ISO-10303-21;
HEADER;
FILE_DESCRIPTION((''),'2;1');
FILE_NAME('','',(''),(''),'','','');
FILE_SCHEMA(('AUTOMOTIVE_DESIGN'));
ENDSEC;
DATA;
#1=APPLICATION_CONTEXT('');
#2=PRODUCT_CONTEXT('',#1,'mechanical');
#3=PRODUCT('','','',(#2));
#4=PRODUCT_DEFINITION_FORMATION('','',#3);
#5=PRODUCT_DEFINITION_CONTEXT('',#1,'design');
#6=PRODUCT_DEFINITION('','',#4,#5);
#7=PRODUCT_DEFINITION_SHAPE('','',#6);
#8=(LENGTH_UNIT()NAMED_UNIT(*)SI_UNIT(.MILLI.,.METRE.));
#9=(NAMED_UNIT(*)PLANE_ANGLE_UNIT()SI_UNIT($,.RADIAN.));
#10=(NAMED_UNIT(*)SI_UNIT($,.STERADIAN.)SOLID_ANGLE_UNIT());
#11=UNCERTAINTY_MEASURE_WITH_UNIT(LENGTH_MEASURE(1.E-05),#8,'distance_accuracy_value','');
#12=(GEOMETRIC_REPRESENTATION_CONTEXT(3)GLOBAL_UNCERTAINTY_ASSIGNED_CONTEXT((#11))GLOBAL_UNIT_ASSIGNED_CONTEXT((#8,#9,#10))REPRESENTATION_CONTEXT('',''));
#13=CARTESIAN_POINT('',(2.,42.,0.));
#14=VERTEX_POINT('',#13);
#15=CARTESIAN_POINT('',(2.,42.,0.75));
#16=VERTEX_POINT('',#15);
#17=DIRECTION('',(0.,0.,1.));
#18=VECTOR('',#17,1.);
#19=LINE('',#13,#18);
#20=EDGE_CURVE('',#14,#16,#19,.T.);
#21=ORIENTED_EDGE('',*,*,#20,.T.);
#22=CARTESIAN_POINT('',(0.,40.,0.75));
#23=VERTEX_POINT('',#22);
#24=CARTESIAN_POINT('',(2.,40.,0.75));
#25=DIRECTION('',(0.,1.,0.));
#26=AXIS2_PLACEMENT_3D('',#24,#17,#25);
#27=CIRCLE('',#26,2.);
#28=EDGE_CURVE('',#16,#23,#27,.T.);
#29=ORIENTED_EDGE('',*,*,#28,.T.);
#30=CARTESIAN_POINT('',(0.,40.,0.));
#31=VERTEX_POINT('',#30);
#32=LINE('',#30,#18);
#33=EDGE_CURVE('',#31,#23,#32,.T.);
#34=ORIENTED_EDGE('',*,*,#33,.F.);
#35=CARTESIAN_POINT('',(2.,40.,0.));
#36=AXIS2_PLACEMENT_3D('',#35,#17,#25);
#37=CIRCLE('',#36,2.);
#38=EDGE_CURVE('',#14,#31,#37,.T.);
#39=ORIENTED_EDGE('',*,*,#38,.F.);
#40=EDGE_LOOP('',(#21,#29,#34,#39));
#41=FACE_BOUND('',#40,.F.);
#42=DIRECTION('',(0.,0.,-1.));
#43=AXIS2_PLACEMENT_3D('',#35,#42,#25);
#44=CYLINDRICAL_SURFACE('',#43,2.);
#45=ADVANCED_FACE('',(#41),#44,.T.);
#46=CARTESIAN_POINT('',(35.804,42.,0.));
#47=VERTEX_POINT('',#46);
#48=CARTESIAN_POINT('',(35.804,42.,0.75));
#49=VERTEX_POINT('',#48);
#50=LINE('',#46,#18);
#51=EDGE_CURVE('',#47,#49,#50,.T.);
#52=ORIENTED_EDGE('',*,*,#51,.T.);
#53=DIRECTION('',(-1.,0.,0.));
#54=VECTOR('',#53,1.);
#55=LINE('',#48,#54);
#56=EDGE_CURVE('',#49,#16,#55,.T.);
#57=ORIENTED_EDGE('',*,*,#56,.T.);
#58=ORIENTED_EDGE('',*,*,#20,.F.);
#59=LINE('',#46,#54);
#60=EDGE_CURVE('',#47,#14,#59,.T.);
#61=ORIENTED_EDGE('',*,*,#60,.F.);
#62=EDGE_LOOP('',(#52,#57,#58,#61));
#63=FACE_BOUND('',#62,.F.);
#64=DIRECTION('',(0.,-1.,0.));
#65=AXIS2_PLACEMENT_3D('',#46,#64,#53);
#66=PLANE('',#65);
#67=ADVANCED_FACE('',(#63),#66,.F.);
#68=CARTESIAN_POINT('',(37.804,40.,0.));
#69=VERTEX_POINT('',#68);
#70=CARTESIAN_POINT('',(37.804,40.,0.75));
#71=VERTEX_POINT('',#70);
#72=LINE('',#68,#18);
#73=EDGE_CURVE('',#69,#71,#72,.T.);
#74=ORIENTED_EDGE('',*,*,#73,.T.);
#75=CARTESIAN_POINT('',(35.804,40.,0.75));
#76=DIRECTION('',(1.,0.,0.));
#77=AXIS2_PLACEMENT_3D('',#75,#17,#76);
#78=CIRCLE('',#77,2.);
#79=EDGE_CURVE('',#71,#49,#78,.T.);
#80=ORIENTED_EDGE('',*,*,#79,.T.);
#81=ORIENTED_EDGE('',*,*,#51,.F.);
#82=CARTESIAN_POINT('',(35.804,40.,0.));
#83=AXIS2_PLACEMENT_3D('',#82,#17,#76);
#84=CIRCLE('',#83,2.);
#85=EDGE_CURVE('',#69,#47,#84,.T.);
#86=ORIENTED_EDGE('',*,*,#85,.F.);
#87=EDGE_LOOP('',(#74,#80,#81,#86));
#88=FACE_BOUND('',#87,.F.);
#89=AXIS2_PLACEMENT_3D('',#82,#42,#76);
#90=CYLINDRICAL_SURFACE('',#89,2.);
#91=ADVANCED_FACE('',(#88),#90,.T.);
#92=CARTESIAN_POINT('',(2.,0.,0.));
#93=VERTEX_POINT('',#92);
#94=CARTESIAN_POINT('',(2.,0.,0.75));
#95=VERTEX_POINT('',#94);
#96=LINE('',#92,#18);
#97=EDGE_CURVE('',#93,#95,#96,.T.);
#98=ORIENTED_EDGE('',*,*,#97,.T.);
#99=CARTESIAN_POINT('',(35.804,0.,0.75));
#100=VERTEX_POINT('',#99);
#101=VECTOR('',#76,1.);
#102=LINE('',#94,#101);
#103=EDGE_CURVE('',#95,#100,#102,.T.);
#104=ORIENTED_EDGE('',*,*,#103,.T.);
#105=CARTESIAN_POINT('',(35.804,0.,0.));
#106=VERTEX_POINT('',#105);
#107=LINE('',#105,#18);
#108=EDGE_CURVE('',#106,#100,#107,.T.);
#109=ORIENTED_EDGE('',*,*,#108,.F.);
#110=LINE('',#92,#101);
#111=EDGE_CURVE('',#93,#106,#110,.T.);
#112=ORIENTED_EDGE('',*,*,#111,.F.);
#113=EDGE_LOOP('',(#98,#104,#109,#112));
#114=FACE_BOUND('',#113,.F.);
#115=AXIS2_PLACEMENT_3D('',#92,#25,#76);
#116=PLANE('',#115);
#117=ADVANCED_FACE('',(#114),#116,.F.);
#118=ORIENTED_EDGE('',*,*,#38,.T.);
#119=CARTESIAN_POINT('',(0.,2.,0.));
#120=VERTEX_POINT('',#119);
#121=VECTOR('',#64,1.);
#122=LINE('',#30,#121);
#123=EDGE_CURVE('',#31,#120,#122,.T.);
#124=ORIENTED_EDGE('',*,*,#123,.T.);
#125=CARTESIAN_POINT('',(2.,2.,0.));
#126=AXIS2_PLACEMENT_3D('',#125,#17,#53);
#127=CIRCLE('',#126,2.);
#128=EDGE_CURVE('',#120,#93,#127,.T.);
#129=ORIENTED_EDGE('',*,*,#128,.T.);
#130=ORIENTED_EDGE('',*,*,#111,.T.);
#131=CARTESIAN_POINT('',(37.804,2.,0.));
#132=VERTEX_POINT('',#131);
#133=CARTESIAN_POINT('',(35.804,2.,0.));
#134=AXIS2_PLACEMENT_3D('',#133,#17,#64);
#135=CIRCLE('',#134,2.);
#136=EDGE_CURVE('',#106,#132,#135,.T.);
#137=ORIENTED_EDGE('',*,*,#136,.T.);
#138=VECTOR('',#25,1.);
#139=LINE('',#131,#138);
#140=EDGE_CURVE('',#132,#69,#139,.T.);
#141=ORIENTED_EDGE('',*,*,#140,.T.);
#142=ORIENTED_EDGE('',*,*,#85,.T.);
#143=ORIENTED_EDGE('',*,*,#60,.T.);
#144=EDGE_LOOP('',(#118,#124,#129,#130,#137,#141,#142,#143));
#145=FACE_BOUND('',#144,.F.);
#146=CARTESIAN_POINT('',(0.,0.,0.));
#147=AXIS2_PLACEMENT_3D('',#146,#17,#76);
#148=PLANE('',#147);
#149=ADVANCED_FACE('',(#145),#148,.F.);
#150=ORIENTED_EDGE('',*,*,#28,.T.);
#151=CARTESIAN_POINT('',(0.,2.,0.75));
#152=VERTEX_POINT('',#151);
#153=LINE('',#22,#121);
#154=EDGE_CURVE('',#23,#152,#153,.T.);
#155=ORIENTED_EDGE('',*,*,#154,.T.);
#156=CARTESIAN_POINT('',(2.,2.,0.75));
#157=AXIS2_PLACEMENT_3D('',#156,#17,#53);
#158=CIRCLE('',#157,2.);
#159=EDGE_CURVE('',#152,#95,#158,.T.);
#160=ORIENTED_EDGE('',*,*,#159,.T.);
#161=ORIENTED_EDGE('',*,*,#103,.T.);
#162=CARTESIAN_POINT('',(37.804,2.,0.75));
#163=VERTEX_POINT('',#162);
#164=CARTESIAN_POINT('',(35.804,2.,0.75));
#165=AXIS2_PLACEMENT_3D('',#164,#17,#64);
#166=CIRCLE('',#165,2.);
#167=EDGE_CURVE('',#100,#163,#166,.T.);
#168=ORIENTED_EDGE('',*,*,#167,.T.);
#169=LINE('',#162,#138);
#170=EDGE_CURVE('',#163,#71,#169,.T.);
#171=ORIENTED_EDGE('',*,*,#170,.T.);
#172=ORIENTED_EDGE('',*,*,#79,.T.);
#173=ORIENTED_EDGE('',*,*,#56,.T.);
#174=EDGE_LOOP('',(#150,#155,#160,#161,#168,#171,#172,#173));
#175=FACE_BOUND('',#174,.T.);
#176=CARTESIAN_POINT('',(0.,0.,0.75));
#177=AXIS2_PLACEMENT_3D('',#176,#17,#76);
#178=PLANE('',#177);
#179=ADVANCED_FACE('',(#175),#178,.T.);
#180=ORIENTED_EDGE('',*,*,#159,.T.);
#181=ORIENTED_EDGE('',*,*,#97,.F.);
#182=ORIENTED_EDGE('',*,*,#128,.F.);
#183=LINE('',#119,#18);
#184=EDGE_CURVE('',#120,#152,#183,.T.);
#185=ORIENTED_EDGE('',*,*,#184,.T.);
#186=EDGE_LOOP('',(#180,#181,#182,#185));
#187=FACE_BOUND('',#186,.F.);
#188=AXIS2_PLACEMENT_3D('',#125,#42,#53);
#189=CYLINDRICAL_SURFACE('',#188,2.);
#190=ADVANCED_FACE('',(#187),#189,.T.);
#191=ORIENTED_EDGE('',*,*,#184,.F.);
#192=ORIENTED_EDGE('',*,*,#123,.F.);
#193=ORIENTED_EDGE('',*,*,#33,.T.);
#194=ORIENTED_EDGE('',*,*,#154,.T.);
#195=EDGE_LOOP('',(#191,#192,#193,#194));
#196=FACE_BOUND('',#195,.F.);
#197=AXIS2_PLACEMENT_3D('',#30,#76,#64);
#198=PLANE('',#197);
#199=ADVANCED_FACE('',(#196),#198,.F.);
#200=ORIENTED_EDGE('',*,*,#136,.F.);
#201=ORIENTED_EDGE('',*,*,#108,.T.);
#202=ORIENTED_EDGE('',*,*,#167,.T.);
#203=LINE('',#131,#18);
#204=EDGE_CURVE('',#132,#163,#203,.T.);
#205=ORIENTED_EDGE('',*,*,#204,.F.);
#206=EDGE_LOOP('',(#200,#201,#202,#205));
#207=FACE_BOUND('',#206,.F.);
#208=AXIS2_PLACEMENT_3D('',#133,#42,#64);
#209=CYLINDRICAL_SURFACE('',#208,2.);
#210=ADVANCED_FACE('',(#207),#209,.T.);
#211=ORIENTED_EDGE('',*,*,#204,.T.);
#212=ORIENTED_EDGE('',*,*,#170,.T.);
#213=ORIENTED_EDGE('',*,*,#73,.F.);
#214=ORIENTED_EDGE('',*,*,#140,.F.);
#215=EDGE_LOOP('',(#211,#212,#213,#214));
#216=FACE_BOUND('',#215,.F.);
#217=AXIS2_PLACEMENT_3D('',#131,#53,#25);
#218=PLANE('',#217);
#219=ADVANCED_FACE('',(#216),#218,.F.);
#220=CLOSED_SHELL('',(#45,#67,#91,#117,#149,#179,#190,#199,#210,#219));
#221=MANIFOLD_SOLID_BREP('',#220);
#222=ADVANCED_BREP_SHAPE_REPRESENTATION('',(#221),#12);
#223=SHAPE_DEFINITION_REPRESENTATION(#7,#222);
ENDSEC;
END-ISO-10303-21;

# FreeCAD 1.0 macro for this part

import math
import FreeCAD as App
import Part
import Sketcher
from FreeCAD import Vector

doc = App.newDocument("Part")
body = doc.addObject("PartDesign::Body", "Body")

sketch1 = doc.addObject("Sketcher::SketchObject", "Sketch")
body.addObject(sketch1)
sketch1.AttachmentSupport = (doc.XY_Plane, [""])
sketch1.MapMode = "FlatFace"
sketch1.addGeometry(Part.ArcOfCircle(Part.Circle(Vector(2, 2, 0), Vector(0, 0, 1), 2), math.radians(180), math.radians(270)), False)
sketch1.addGeometry(Part.LineSegment(Vector(2, 0, 0), Vector(35.8, 0, 0)), False)
sketch1.addGeometry(Part.ArcOfCircle(Part.Circle(Vector(35.8, 2, 0), Vector(0, 0, 1), 2), math.radians(-90), math.radians(0)), False)
sketch1.addGeometry(Part.LineSegment(Vector(37.8, 2, 0), Vector(37.8, 40, 0)), False)
sketch1.addGeometry(Part.ArcOfCircle(Part.Circle(Vector(35.8, 40, 0), Vector(0, 0, 1), 2), math.radians(0), math.radians(90)), False)
sketch1.addGeometry(Part.LineSegment(Vector(35.8, 42, 0), Vector(2, 42, 0)), False)
sketch1.addGeometry(Part.ArcOfCircle(Part.Circle(Vector(2, 40, 0), Vector(0, 0, 1), 2), math.radians(90), math.radians(180)), False)
sketch1.addGeometry(Part.LineSegment(Vector(0, 40, 0), Vector(0, 2, 0)), False)
sketch1.addConstraint(Sketcher.Constraint("Tangent", 0, 2, 1, 1))
sketch1.addConstraint(Sketcher.Constraint("Tangent", 1, 2, 2, 1))
sketch1.addConstraint(Sketcher.Constraint("Tangent", 2, 2, 3, 1))
sketch1.addConstraint(Sketcher.Constraint("Tangent", 3, 2, 4, 1))
sketch1.addConstraint(Sketcher.Constraint("Tangent", 4, 2, 5, 1))
sketch1.addConstraint(Sketcher.Constraint("Tangent", 5, 2, 6, 1))
sketch1.addConstraint(Sketcher.Constraint("Tangent", 6, 2, 7, 1))
sketch1.addConstraint(Sketcher.Constraint("Tangent", 7, 2, 0, 1))
sketch1.addConstraint(Sketcher.Constraint("Horizontal", 1))
sketch1.addConstraint(Sketcher.Constraint("Vertical", 3))
sketch1.addConstraint(Sketcher.Constraint("Horizontal", 5))
sketch1.addConstraint(Sketcher.Constraint("Vertical", 7))
sketch1.addConstraint(Sketcher.Constraint("Equal", 0, 2))
sketch1.addConstraint(Sketcher.Constraint("Equal", 2, 4))
sketch1.addConstraint(Sketcher.Constraint("Equal", 4, 6))
sketch1.addConstraint(Sketcher.Constraint("PointOnObject", 0, 2, -1))
sketch1.addConstraint(Sketcher.Constraint("PointOnObject", 6, 2, -2))
sketch1.addConstraint(Sketcher.Constraint("Radius", 0, 2.0))
sketch1.addConstraint(Sketcher.Constraint("DistanceY", -1, 1, 4, 2, 42.0))
sketch1.addConstraint(Sketcher.Constraint("DistanceX", -1, 1, 2, 2, 37.804))
pad1 = doc.addObject("PartDesign::Pad", "Pad")
body.addObject(pad1)
pad1.Profile = sketch1
pad1.Length = 0.75

doc.recompute()
